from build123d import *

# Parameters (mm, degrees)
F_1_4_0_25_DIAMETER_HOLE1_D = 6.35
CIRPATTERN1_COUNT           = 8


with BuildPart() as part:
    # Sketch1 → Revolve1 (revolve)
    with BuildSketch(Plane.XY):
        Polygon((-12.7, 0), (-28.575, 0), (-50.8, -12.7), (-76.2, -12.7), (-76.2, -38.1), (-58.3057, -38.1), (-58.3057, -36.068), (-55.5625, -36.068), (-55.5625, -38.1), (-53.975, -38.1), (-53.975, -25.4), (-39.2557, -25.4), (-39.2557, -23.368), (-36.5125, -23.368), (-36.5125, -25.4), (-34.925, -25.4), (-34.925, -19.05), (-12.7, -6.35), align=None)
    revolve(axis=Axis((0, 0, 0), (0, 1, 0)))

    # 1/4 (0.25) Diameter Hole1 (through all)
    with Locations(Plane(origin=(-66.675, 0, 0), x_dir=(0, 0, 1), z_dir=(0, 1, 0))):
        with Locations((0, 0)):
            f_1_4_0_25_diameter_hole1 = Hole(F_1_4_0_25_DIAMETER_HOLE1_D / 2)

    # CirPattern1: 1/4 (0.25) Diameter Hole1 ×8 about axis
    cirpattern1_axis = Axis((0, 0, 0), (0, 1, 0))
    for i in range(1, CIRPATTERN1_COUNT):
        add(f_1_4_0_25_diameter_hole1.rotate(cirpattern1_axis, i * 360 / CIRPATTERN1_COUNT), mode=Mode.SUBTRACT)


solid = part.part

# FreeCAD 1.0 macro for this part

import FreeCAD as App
import Part
import Sketcher
from FreeCAD import Vector
Q = App.Units.Quantity

doc = App.newDocument("Part")
body = doc.addObject("PartDesign::Body", "Body")

# Sketch on XY plane
sketch1 = body.newObject("Sketcher::SketchObject", "Sketch")
sketch1.AttachmentSupport = (doc.getObject("XY_Plane"), [""])
sketch1.MapMode = "FlatFace"
sketch1.addGeometry([
    Part.LineSegment(Vector(-12.7, 0, 0), Vector(-28.6, 0, 0)),  # 0
    Part.LineSegment(Vector(-28.6, 0, 0), Vector(-50.8, -12.7, 0)),  # 1
    Part.LineSegment(Vector(-50.8, -12.7, 0), Vector(-76.2, -12.7, 0)),  # 2
    Part.LineSegment(Vector(-76.2, -12.7, 0), Vector(-76.2, -38.1, 0)),  # 3
    Part.LineSegment(Vector(-76.2, -38.1, 0), Vector(-58.3, -38.1, 0)),  # 4
    Part.LineSegment(Vector(-58.3, -38.1, 0), Vector(-58.3, -36.1, 0)),  # 5
    Part.LineSegment(Vector(-58.3, -36.1, 0), Vector(-55.6, -36.1, 0)),  # 6
    Part.LineSegment(Vector(-55.6, -36.1, 0), Vector(-55.6, -38.1, 0)),  # 7
    Part.LineSegment(Vector(-55.6, -38.1, 0), Vector(-54, -38.1, 0)),  # 8
    Part.LineSegment(Vector(-54, -38.1, 0), Vector(-54, -25.4, 0)),  # 9
    Part.LineSegment(Vector(-54, -25.4, 0), Vector(-39.3, -25.4, 0)),  # 10
    Part.LineSegment(Vector(-39.3, -25.4, 0), Vector(-39.3, -23.4, 0)),  # 11
    Part.LineSegment(Vector(-39.3, -23.4, 0), Vector(-36.5, -23.4, 0)),  # 12
    Part.LineSegment(Vector(-36.5, -23.4, 0), Vector(-36.5, -25.4, 0)),  # 13
    Part.LineSegment(Vector(-36.5, -25.4, 0), Vector(-34.9, -25.4, 0)),  # 14
    Part.LineSegment(Vector(-34.9, -25.4, 0), Vector(-34.9, -19.1, 0)),  # 15
    Part.LineSegment(Vector(-34.9, -19.1, 0), Vector(-12.7, -6.3, 0)),  # 16
    Part.LineSegment(Vector(-12.7, -6.3, 0), Vector(-12.7, 0, 0)),  # 17
], False)
sketch1.addConstraint([
    Sketcher.Constraint("Coincident", 0, 2, 1, 1),
    Sketcher.Constraint("Coincident", 1, 2, 2, 1),
    Sketcher.Constraint("Coincident", 2, 2, 3, 1),
    Sketcher.Constraint("Coincident", 3, 2, 4, 1),
    Sketcher.Constraint("Coincident", 4, 2, 5, 1),
    Sketcher.Constraint("Coincident", 5, 2, 6, 1),
    Sketcher.Constraint("Coincident", 6, 2, 7, 1),
    Sketcher.Constraint("Coincident", 7, 2, 8, 1),
    Sketcher.Constraint("Coincident", 8, 2, 9, 1),
    Sketcher.Constraint("Coincident", 9, 2, 10, 1),
    Sketcher.Constraint("Coincident", 10, 2, 11, 1),
    Sketcher.Constraint("Coincident", 11, 2, 12, 1),
    Sketcher.Constraint("Coincident", 12, 2, 13, 1),
    Sketcher.Constraint("Coincident", 13, 2, 14, 1),
    Sketcher.Constraint("Coincident", 14, 2, 15, 1),
    Sketcher.Constraint("Coincident", 15, 2, 16, 1),
    Sketcher.Constraint("Coincident", 16, 2, 17, 1),
    Sketcher.Constraint("Coincident", 17, 2, 0, 1),
    Sketcher.Constraint("Horizontal", 0),
    Sketcher.Constraint("Horizontal", 2),
    Sketcher.Constraint("Vertical", 3),
    Sketcher.Constraint("Horizontal", 4),
    Sketcher.Constraint("Vertical", 5),
    Sketcher.Constraint("Horizontal", 6),
    Sketcher.Constraint("Vertical", 7),
    Sketcher.Constraint("Horizontal", 8),
    Sketcher.Constraint("Vertical", 9),
    Sketcher.Constraint("Horizontal", 10),
    Sketcher.Constraint("Vertical", 11),
    Sketcher.Constraint("Horizontal", 12),
    Sketcher.Constraint("Vertical", 13),
    Sketcher.Constraint("Horizontal", 14),
    Sketcher.Constraint("Vertical", 15),
    Sketcher.Constraint("Vertical", 17),
    Sketcher.Constraint("PointOnObject", 0, 2, -1),
    Sketcher.Constraint("Parallel", 1, 16),
    Sketcher.Constraint("Horizontal", 4, 2, 7, 2),
    Sketcher.Constraint("Horizontal", 10, 2, 13, 2),
    Sketcher.Constraint("Equal", 6, 12),
    Sketcher.Constraint("Equal", 8, 14),
    Sketcher.Constraint("Equal", 2, 3),
    Sketcher.Constraint("Equal", 7, 11),
    Sketcher.Constraint("Equal", 15, 17),
    Sketcher.Constraint("Equal", 1, 16),
    Sketcher.Constraint("DistanceX", 2, 2, 2, 1, Q("1 in")),
    Sketcher.Constraint("DistanceY", 9, 1, 9, 2, Q("0.5 in")),
    Sketcher.Constraint("DistanceX", 1, 2, -1, 1, Q("2 in")),
    Sketcher.Constraint("DistanceY", 9, 2, -1, 1, Q("1 in")),
    Sketcher.Constraint("DistanceY", 5, 1, 5, 2, Q("0.08 in")),
    Sketcher.Constraint("DistanceX", 16, 2, -1, 1, Q("0.5 in")),
    Sketcher.Constraint("DistanceX", 0, 2, 0, 1, Q("0.625 in")),
    Sketcher.Constraint("DistanceX", 6, 1, 6, 2, Q("0.108 in")),
    Sketcher.Constraint("DistanceX", 8, 1, 8, 2, Q("0.0625 in")),
    Sketcher.Constraint("DistanceX", 9, 2, 14, 2, Q("0.75 in")),
])
revolution = body.newObject("PartDesign::Revolution", "Revolution")
revolution.Profile = sketch1
revolution.ReferenceAxis = (sketch1, ["V_Axis"])
revolution.Angle = 360

# Sketch on XZ plane
sketch2 = body.newObject("Sketcher::SketchObject", "Sketch001")
sketch2.AttachmentSupport = (doc.getObject("XZ_Plane"), [""])
sketch2.MapMode = "FlatFace"
sketch2.addGeometry(Part.Circle(Vector(-66.7, 0, 0), Vector(0, 0, 1), 3.2), False)
sketch2.addConstraint([
    Sketcher.Constraint("PointOnObject", 0, 3, -1),
    Sketcher.Constraint("Diameter", 0, Q("0.25 in")),
    Sketcher.Constraint("DistanceX", 0, 3, -1, 1, Q("2.625 in")),
])
doc.recompute()
hole = body.newObject("PartDesign::Hole", "Hole")
hole.Profile = sketch2
hole.ThreadType = "None"
hole.Diameter = Q("0.25 in")
hole.DepthType = "ThroughAll"
hole.Reversed = True
doc.recompute()

polarpattern = body.newObject("PartDesign::PolarPattern", "PolarPattern")
polarpattern.Originals = [hole]
polarpattern.Axis = (doc.getObject("Y_Axis"), [""])
polarpattern.Angle = 360
polarpattern.Occurrences = 8
body.Tip = polarpattern

doc.recompute()
